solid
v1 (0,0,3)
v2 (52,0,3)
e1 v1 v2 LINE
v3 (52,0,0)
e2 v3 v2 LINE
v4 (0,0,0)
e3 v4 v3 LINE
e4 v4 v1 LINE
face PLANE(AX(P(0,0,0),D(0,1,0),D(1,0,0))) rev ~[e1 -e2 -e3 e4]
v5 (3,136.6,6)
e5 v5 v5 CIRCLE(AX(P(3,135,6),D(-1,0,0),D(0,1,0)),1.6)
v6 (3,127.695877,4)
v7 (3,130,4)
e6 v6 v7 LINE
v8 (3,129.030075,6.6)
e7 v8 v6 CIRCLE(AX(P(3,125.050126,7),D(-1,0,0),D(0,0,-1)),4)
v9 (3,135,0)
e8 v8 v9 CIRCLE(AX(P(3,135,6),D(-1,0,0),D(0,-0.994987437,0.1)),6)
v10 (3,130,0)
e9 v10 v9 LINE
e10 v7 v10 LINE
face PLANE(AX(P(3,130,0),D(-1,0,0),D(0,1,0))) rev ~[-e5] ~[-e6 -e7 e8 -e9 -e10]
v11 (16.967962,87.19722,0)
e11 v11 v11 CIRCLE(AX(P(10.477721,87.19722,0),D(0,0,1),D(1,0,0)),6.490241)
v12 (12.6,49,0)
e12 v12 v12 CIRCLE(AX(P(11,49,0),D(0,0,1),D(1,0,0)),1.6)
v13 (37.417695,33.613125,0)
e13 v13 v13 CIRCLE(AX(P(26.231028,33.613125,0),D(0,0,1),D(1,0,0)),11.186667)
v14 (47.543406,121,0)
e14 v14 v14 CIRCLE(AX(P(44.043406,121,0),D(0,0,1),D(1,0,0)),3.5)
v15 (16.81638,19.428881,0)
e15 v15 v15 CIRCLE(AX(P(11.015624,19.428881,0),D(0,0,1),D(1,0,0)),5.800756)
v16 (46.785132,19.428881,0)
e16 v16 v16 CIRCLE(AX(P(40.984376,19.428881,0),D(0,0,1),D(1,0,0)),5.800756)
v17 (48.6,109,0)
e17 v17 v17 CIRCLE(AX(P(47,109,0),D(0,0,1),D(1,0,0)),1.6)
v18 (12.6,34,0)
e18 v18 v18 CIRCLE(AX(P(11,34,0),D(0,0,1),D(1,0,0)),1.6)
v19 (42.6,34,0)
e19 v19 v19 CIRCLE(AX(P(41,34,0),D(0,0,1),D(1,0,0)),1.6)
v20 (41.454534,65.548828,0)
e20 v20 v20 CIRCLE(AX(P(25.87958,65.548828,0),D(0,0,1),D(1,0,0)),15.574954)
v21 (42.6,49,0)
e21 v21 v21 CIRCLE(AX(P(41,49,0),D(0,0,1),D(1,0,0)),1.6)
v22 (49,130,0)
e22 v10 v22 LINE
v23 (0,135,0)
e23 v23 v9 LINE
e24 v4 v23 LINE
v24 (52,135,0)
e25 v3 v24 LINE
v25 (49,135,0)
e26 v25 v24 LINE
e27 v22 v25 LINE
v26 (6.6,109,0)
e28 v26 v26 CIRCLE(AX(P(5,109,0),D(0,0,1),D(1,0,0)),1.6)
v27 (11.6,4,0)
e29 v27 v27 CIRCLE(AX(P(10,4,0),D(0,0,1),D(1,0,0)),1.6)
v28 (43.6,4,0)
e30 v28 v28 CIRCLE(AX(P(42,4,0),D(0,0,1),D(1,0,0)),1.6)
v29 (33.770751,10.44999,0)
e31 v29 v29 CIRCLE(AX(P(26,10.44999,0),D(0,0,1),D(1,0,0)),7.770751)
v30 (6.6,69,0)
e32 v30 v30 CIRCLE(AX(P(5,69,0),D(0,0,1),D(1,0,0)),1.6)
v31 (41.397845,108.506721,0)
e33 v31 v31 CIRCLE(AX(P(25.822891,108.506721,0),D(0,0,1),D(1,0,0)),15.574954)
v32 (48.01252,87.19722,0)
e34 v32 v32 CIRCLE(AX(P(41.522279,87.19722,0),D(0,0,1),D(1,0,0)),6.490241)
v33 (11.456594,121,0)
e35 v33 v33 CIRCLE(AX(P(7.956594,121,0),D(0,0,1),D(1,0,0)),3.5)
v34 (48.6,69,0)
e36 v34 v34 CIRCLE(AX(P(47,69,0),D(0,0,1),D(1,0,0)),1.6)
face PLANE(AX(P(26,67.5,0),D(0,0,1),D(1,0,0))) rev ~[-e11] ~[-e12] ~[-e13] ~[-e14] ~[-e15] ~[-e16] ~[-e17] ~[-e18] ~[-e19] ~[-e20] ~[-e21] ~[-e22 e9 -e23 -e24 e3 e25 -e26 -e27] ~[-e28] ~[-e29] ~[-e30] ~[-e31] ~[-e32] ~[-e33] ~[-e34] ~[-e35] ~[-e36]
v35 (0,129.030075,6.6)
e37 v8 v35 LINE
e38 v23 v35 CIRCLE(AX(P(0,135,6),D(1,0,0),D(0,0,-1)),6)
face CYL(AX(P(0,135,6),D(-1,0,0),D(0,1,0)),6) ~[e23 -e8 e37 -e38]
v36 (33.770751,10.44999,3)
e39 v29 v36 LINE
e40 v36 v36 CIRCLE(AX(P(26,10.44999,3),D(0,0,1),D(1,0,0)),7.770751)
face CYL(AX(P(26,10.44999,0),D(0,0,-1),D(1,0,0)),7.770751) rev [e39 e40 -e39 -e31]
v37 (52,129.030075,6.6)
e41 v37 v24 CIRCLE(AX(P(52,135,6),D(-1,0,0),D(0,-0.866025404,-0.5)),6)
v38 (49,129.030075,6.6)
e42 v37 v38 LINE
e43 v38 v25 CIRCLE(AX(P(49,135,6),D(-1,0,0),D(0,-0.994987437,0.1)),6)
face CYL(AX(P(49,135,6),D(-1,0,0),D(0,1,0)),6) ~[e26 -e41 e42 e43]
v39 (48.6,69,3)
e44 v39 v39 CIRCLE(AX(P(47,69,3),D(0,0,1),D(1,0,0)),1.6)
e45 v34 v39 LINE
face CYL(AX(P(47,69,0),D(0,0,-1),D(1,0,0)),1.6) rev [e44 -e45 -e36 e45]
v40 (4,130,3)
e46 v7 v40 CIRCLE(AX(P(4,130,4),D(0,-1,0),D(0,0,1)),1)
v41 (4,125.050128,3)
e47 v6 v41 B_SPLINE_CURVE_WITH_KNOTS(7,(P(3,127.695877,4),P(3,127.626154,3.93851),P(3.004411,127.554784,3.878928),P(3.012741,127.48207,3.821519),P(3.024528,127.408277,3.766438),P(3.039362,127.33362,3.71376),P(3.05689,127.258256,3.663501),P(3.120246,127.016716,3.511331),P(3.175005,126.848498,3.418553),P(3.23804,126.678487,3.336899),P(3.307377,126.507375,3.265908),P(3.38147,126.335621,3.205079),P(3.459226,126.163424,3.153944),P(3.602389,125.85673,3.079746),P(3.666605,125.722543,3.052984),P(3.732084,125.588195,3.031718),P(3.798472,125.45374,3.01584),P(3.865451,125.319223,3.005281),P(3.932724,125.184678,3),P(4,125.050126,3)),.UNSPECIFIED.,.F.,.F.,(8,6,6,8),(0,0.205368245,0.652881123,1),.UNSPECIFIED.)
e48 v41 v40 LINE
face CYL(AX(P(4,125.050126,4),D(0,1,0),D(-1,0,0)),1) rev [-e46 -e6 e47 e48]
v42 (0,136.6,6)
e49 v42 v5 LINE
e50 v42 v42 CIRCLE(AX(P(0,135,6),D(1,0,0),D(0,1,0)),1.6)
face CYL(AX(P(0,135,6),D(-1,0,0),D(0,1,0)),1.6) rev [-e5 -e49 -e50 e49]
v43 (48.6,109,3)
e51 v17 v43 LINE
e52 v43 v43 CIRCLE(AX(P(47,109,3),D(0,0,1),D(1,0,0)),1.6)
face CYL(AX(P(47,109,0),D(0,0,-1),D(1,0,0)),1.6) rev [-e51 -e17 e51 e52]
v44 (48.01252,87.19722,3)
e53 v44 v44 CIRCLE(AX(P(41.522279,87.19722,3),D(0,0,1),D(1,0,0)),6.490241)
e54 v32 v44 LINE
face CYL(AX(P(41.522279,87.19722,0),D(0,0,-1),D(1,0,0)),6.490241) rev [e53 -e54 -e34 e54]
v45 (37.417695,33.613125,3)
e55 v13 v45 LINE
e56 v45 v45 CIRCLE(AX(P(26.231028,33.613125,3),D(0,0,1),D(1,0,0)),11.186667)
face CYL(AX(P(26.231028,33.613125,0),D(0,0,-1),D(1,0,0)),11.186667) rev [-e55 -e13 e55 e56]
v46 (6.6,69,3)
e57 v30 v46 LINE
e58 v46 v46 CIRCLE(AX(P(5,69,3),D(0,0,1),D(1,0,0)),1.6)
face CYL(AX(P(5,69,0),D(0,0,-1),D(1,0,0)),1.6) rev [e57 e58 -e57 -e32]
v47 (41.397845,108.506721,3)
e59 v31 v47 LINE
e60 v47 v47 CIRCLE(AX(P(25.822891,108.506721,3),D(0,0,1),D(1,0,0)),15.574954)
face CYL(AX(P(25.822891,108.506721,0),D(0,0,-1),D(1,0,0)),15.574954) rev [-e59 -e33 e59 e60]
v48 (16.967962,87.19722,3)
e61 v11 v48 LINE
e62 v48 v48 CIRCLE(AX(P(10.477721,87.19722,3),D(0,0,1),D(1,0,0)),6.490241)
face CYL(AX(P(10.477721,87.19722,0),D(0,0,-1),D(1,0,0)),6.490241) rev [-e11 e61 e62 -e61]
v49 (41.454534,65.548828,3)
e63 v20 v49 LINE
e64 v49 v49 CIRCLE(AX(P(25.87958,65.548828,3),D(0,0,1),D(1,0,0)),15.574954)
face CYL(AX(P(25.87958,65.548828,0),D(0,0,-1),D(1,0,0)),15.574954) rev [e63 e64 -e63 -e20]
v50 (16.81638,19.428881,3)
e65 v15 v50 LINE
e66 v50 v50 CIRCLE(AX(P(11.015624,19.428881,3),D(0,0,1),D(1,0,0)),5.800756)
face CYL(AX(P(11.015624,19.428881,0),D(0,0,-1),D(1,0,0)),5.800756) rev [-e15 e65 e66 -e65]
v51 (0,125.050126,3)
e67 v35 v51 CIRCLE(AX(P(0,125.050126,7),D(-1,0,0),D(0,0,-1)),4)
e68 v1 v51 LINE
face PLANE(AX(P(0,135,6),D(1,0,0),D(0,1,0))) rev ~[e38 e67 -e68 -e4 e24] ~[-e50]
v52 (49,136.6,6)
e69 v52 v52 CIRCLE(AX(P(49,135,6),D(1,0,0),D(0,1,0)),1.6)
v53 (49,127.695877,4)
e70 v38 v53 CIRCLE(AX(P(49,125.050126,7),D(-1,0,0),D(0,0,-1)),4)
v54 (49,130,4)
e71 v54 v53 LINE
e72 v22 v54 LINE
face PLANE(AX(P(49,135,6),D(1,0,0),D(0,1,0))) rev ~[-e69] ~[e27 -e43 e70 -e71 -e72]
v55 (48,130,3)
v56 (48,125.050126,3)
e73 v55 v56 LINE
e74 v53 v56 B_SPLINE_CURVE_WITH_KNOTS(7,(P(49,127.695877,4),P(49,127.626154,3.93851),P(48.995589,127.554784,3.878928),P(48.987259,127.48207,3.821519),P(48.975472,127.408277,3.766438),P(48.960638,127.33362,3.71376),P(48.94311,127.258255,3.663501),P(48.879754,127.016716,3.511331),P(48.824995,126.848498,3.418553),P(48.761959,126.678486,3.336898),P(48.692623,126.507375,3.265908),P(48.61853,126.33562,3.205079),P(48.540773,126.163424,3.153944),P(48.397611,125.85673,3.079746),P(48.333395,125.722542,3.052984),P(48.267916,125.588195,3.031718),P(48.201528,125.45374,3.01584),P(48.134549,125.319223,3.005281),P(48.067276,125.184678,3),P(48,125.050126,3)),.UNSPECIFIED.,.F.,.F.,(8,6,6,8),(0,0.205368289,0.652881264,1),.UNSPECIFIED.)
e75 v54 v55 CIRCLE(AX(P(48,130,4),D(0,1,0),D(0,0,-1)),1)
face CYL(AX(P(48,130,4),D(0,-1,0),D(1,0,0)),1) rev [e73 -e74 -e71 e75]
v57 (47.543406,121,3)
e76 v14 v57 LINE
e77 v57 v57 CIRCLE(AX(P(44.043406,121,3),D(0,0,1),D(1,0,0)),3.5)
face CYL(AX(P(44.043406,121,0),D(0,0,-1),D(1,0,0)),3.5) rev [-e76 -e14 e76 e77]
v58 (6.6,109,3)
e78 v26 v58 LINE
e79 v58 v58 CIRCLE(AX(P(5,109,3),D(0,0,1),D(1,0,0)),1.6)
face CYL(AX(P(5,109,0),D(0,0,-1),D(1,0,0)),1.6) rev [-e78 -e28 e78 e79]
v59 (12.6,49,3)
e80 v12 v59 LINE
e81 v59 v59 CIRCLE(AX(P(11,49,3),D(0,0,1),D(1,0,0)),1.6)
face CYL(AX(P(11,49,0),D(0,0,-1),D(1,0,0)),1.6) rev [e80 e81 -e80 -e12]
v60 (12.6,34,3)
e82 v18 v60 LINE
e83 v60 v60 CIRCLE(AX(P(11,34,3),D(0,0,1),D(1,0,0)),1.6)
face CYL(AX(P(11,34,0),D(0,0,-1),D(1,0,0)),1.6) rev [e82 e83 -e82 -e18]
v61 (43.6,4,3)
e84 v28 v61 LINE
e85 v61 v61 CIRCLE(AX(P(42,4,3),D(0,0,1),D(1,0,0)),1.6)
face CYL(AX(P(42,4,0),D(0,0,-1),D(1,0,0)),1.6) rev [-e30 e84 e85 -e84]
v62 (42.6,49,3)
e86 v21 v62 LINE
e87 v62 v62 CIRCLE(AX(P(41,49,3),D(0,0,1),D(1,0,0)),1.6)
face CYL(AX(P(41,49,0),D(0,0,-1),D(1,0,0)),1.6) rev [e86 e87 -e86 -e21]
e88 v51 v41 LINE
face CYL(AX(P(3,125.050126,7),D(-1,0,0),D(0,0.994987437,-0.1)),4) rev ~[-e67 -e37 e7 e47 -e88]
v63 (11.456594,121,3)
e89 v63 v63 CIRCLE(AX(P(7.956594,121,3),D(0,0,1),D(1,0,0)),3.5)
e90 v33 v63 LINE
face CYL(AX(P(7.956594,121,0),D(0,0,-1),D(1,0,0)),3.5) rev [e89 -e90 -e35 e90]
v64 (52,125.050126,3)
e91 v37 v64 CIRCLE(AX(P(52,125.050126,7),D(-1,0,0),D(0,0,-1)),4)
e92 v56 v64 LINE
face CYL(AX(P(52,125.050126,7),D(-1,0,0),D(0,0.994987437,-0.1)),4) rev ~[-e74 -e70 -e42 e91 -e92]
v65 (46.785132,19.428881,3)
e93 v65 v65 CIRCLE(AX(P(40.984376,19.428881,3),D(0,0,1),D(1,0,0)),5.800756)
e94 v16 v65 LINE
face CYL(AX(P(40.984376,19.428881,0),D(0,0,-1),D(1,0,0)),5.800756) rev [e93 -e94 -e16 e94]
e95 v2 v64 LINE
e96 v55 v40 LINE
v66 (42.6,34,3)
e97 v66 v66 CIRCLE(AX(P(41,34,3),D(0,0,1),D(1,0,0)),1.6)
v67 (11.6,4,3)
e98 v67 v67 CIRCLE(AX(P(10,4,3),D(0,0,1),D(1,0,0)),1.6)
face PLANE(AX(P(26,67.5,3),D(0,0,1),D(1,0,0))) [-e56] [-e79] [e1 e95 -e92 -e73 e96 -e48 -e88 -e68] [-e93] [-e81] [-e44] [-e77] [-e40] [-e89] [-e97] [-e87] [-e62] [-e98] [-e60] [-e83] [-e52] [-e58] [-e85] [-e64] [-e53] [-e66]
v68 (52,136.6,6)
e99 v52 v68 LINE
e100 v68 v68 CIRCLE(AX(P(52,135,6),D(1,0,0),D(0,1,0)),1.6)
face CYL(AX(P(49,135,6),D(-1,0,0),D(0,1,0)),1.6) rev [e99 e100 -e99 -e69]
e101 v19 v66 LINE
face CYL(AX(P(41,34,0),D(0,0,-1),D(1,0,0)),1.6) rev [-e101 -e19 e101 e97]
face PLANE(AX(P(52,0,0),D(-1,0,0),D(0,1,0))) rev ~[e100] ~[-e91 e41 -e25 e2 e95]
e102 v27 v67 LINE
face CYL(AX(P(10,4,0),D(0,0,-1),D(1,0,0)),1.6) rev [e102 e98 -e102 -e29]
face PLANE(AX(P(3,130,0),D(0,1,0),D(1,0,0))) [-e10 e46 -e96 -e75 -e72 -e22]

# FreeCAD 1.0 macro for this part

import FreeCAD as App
import Part
import Sketcher
Q = App.Units.Quantity


def edges_at(feature, points):
    """Names of the edges that pass closest to the given points."""
    edges = feature.Shape.Edges
    near = lambda p: min(range(len(edges)), key=lambda i: edges[i].distToShape(Part.Vertex(*p))[0])
    return sorted({f"Edge{near(p) + 1}" for p in points})

doc = App.newDocument("Part")
body = doc.addObject("PartDesign::Body", "Body")

# Sketch on XY plane
sketch1 = doc.addObject("Sketcher::SketchObject", "Sketch")
body.addObject(sketch1)
sketch1.AttachmentSupport = (doc.XY_Plane, [""])
sketch1.MapMode = "FlatFace"
sketch1.addGeometry([
    Part.LineSegment(App.Vector(3, 140, 0), App.Vector(3, 130, 0)),
    Part.LineSegment(App.Vector(3, 130, 0), App.Vector(49, 130, 0)),
    Part.LineSegment(App.Vector(49, 130, 0), App.Vector(49, 140, 0)),
    Part.LineSegment(App.Vector(49, 140, 0), App.Vector(3, 140, 0)),
], False)
sketch1.addConstraint([
    Sketcher.Constraint("Coincident", 0, 2, 1, 1),
    Sketcher.Constraint("Coincident", 1, 2, 2, 1),
    Sketcher.Constraint("Coincident", 2, 2, 3, 1),
    Sketcher.Constraint("Coincident", 3, 2, 0, 1),
    Sketcher.Constraint("Vertical", 0),
    Sketcher.Constraint("Horizontal", 1),
    Sketcher.Constraint("Vertical", 2),
    Sketcher.Constraint("Horizontal", 3),
    Sketcher.Constraint("DistanceX", 1, 1, 1, 2, Q("46 mm")),
    Sketcher.Constraint("DistanceY", 0, 2, 0, 1, Q("10 mm")),
    Sketcher.Constraint("DistanceX", -1, 1, 0, 2, Q("3 mm")),
    Sketcher.Constraint("DistanceY", -1, 1, 0, 2, Q("130 mm")),
])
pad1 = doc.addObject("PartDesign::Pad", "Pad")
body.addObject(pad1)
pad1.Profile = sketch1
pad1.Length = 5
body2 = doc.addObject("PartDesign::Body", "Body001")

# Sketch on YZ plane
sketch2 = doc.addObject("Sketcher::SketchObject", "Sketch001")
body2.addObject(sketch2)
sketch2.AttachmentSupport = (doc.getObject("YZ_Plane001"), [""])
sketch2.MapMode = "FlatFace"
sketch2.addGeometry([
    Part.Circle(App.Vector(135, 6, 0), App.Vector(0, 0, 1), 6),
    Part.Circle(App.Vector(135, 6, 0), App.Vector(0, 0, 1), 1.6),
], False)
sketch2.addConstraint([
    Sketcher.Constraint("Coincident", 1, 3, 0, 3),
    Sketcher.Constraint("Diameter", 0, Q("12 mm")),
    Sketcher.Constraint("Diameter", 1, Q("3.2 mm")),
    Sketcher.Constraint("DistanceX", -1, 1, 0, 3, Q("135 mm")),
    Sketcher.Constraint("DistanceY", -1, 1, 0, 3, Q("6 mm")),
])
pad2 = doc.addObject("PartDesign::Pad", "Pad001")
body2.addObject(pad2)
pad2.Profile = sketch2
pad2.Length = 3
body3 = doc.addObject("PartDesign::Body", "Body002")

# Sketch on XY plane
sketch3 = doc.addObject("Sketcher::SketchObject", "Sketch002")
body3.addObject(sketch3)
sketch3.AttachmentSupport = (doc.getObject("XY_Plane002"), [""])
sketch3.MapMode = "FlatFace"
sketch3.addGeometry([
    Part.LineSegment(App.Vector(0, 135, 0), App.Vector(0, 0, 0)),  # 0
    Part.LineSegment(App.Vector(0, 0, 0), App.Vector(52, 0, 0)),  # 1
    Part.LineSegment(App.Vector(52, 0, 0), App.Vector(52, 135, 0)),  # 2
    Part.LineSegment(App.Vector(52, 135, 0), App.Vector(0, 135, 0)),  # 3
    Part.Circle(App.Vector(10, 4, 0), App.Vector(0, 0, 1), 1.6),  # 4
    Part.Circle(App.Vector(11.015624, 19.428881, 0), App.Vector(0, 0, 1), 5.800756),  # 5
    Part.Circle(App.Vector(11, 34, 0), App.Vector(0, 0, 1), 1.6),  # 6
    Part.Circle(App.Vector(11, 49, 0), App.Vector(0, 0, 1), 1.6),  # 7
    Part.Circle(App.Vector(26, 10.44999, 0), App.Vector(0, 0, 1), 7.770751),  # 8
    Part.Circle(App.Vector(42, 4, 0), App.Vector(0, 0, 1), 1.6),  # 9
    Part.Circle(App.Vector(40.984376, 19.428881, 0), App.Vector(0, 0, 1), 5.800756),  # 10
    Part.Circle(App.Vector(26.231028, 33.613125, 0), App.Vector(0, 0, 1), 11.186667),  # 11
    Part.Circle(App.Vector(41, 34, 0), App.Vector(0, 0, 1), 1.6),  # 12
    Part.Circle(App.Vector(41, 49, 0), App.Vector(0, 0, 1), 1.6),  # 13
    Part.Circle(App.Vector(5, 69, 0), App.Vector(0, 0, 1), 1.6),  # 14
    Part.Circle(App.Vector(10.477721, 87.19722, 0), App.Vector(0, 0, 1), 6.490241),  # 15
    Part.Circle(App.Vector(25.87958, 65.548828, 0), App.Vector(0, 0, 1), 15.574954),  # 16
    Part.Circle(App.Vector(5, 109, 0), App.Vector(0, 0, 1), 1.6),  # 17
    Part.Circle(App.Vector(7.956594, 121, 0), App.Vector(0, 0, 1), 3.5),  # 18
    Part.Circle(App.Vector(25.822891, 108.506721, 0), App.Vector(0, 0, 1), 15.574954),  # 19
    Part.Circle(App.Vector(47, 69, 0), App.Vector(0, 0, 1), 1.6),  # 20
    Part.Circle(App.Vector(41.522279, 87.19722, 0), App.Vector(0, 0, 1), 6.490241),  # 21
    Part.Circle(App.Vector(47, 109, 0), App.Vector(0, 0, 1), 1.6),  # 22
    Part.Circle(App.Vector(44.043406, 121, 0), App.Vector(0, 0, 1), 3.5),  # 23
], False)
sketch3.addConstraint([
    Sketcher.Constraint("Coincident", 0, 2, 1, 1),
    Sketcher.Constraint("Coincident", 1, 2, 2, 1),
    Sketcher.Constraint("Coincident", 2, 2, 3, 1),
    Sketcher.Constraint("Coincident", 3, 2, 0, 1),
    Sketcher.Constraint("Vertical", 0),
    Sketcher.Constraint("Horizontal", 1),
    Sketcher.Constraint("Vertical", 2),
    Sketcher.Constraint("Horizontal", 3),
    Sketcher.Constraint("Coincident", 0, 2, -1, 1),
    Sketcher.Constraint("Equal", 4, 6),
    Sketcher.Constraint("Equal", 6, 7),
    Sketcher.Constraint("Equal", 7, 9),
    Sketcher.Constraint("Equal", 5, 10),
    Sketcher.Constraint("Equal", 9, 12),
    Sketcher.Constraint("Equal", 12, 13),
    Sketcher.Constraint("Equal", 13, 14),
    Sketcher.Constraint("Equal", 14, 17),
    Sketcher.Constraint("Equal", 16, 19),
    Sketcher.Constraint("Equal", 17, 20),
    Sketcher.Constraint("Equal", 15, 21),
    Sketcher.Constraint("Equal", 20, 22),
    Sketcher.Constraint("Equal", 18, 23),
    Sketcher.Constraint("Horizontal", 4, 3, 9, 3),
    Sketcher.Constraint("Horizontal", 5, 3, 10, 3),
    Sketcher.Constraint("Horizontal", 6, 3, 12, 3),
    Sketcher.Constraint("Horizontal", 7, 3, 13, 3),
    Sketcher.Constraint("Horizontal", 14, 3, 20, 3),
    Sketcher.Constraint("Horizontal", 15, 3, 21, 3),
    Sketcher.Constraint("Horizontal", 17, 3, 22, 3),
    Sketcher.Constraint("Horizontal", 18, 3, 23, 3),
    Sketcher.Constraint("Vertical", 6, 3, 7, 3),
    Sketcher.Constraint("Vertical", 12, 3, 13, 3),
    Sketcher.Constraint("Vertical", 14, 3, 17, 3),
    Sketcher.Constraint("Vertical", 20, 3, 22, 3),
    Sketcher.Constraint("Diameter", 18, Q("7 mm")),
    Sketcher.Constraint("Diameter", 4, Q("3.2 mm")),
    Sketcher.Constraint("DistanceX", 1, 1, 1, 2, Q("52 mm")),
    Sketcher.Constraint("DistanceY", 0, 2, 0, 1, Q("135 mm")),
    Sketcher.Constraint("DistanceX", -1, 1, 4, 3, Q("10 mm")),
    Sketcher.Constraint("DistanceY", -1, 1, 4, 3, Q("4 mm")),
    Sketcher.Constraint("DistanceX", -1, 1, 6, 3, Q("11 mm")),
    Sketcher.Constraint("DistanceY", -1, 1, 6, 3, Q("34 mm")),
    Sketcher.Constraint("DistanceY", -1, 1, 7, 3, Q("49 mm")),
    Sketcher.Constraint("DistanceX", -1, 1, 8, 3, Q("26 mm")),
    Sketcher.Constraint("DistanceX", -1, 1, 9, 3, Q("42 mm")),
    Sketcher.Constraint("DistanceX", -1, 1, 12, 3, Q("41 mm")),
    Sketcher.Constraint("DistanceX", -1, 1, 14, 3, Q("5 mm")),
    Sketcher.Constraint("DistanceY", -1, 1, 14, 3, Q("69 mm")),
    Sketcher.Constraint("DistanceY", -1, 1, 17, 3, Q("109 mm")),
    Sketcher.Constraint("DistanceY", -1, 1, 18, 3, Q("121 mm")),
    Sketcher.Constraint("DistanceX", -1, 1, 20, 3, Q("47 mm")),
    Sketcher.Constraint("Diameter", 16, Q("31.149908 mm")),
    Sketcher.Constraint("Diameter", 5, Q("11.601512 mm")),
    Sketcher.Constraint("Diameter", 8, Q("15.541502 mm")),
    Sketcher.Constraint("Diameter", 11, Q("22.373334 mm")),
    Sketcher.Constraint("Diameter", 15, Q("12.980482 mm")),
    Sketcher.Constraint("DistanceY", 15, 3, 19, 3, Q("21.309501 mm")),
    Sketcher.Constraint("DistanceX", 16, 3, 21, 3, Q("15.642699 mm")),
    Sketcher.Constraint("DistanceY", -1, 1, 5, 3, Q("19.428881 mm")),
    Sketcher.Constraint("DistanceY", -1, 1, 8, 3, Q("10.44999 mm")),
    Sketcher.Constraint("DistanceX", -1, 1, 15, 3, Q("10.477721 mm")),
    Sketcher.Constraint("DistanceY", -1, 1, 15, 3, Q("87.19722 mm")),
    Sketcher.Constraint("DistanceX", -1, 1, 16, 3, Q("25.87958 mm")),
    Sketcher.Constraint("DistanceY", -1, 1, 16, 3, Q("65.548828 mm")),
    Sketcher.Constraint("DistanceX", -1, 1, 19, 3, Q("25.822891 mm")),
    Sketcher.Constraint("DistanceX", 5, 3, 10, 3, Q("29.968752 mm")),
    Sketcher.Constraint("DistanceX", 18, 3, 23, 3, Q("36.086812 mm")),
    Sketcher.Constraint("DistanceX", -1, 1, 5, 3, Q("11.015624 mm")),
    Sketcher.Constraint("DistanceX", -1, 1, 11, 3, Q("26.231028 mm")),
    Sketcher.Constraint("DistanceY", -1, 1, 11, 3, Q("33.613125 mm")),
    Sketcher.Constraint("DistanceX", -1, 1, 18, 3, Q("7.956594 mm")),
])
pad3 = doc.addObject("PartDesign::Pad", "Pad002")
body3.addObject(pad3)
pad3.Profile = sketch3
pad3.Length = 3
doc.recompute()

boolean = doc.addObject("PartDesign::Boolean", "Boolean")
body3.addObject(boolean)
boolean.Type = "Fuse"
boolean.addObjects([body2])
body4 = doc.addObject("PartDesign::Body", "Body003")

# Sketch on YZ plane
sketch4 = doc.addObject("Sketcher::SketchObject", "Sketch003")
body4.addObject(sketch4)
sketch4.AttachmentSupport = (doc.getObject("YZ_Plane003"), [""])
sketch4.MapMode = "FlatFace"
sketch4.AttachmentOffset = App.Placement(App.Vector(0, 0, 49), App.Rotation())
sketch4.addGeometry([
    Part.Circle(App.Vector(135, 6, 0), App.Vector(0, 0, 1), 6),
    Part.Circle(App.Vector(135, 6, 0), App.Vector(0, 0, 1), 1.6),
], False)
sketch4.addConstraint([
    Sketcher.Constraint("Coincident", 1, 3, 0, 3),
    Sketcher.Constraint("Diameter", 0, Q("12 mm")),
    Sketcher.Constraint("Diameter", 1, Q("3.2 mm")),
    Sketcher.Constraint("DistanceX", -1, 1, 0, 3, Q("135 mm")),
    Sketcher.Constraint("DistanceY", -1, 1, 0, 3, Q("6 mm")),
])
pad4 = doc.addObject("PartDesign::Pad", "Pad003")
body4.addObject(pad4)
pad4.Profile = sketch4
pad4.Length = 3
doc.recompute()

boolean2 = doc.addObject("PartDesign::Boolean", "Boolean001")
body4.addObject(boolean2)
boolean2.Type = "Fuse"
boolean2.addObjects([body3])
doc.recompute()

fillet = doc.addObject("PartDesign::Fillet", "Fillet")
body4.addObject(fillet)
fillet.Base = (boolean2, edges_at(boolean2, [(1.5, 129.804, 3)]))
fillet.Radius = 4
doc.recompute()

fillet2 = doc.addObject("PartDesign::Fillet", "Fillet001")
body4.addObject(fillet2)
fillet2.Base = (fillet, edges_at(fillet, [(50.5, 129.804, 3)]))
fillet2.Radius = 4
doc.recompute()

boolean3 = doc.addObject("PartDesign::Boolean", "Boolean002")
body4.addObject(boolean3)
boolean3.Type = "Cut"
boolean3.addObjects([body])
doc.recompute()

fillet3 = doc.addObject("PartDesign::Fillet", "Fillet002")
body4.addObject(fillet3)
fillet3.Base = (boolean3, edges_at(boolean3, [(3, 127.525, 3)]))
fillet3.Radius = 1
doc.recompute()

fillet4 = doc.addObject("PartDesign::Fillet", "Fillet003")
body4.addObject(fillet4)
fillet4.Base = (fillet3, edges_at(fillet3, [(49, 127.525, 3)]))
fillet4.Radius = 1

doc.recompute()
